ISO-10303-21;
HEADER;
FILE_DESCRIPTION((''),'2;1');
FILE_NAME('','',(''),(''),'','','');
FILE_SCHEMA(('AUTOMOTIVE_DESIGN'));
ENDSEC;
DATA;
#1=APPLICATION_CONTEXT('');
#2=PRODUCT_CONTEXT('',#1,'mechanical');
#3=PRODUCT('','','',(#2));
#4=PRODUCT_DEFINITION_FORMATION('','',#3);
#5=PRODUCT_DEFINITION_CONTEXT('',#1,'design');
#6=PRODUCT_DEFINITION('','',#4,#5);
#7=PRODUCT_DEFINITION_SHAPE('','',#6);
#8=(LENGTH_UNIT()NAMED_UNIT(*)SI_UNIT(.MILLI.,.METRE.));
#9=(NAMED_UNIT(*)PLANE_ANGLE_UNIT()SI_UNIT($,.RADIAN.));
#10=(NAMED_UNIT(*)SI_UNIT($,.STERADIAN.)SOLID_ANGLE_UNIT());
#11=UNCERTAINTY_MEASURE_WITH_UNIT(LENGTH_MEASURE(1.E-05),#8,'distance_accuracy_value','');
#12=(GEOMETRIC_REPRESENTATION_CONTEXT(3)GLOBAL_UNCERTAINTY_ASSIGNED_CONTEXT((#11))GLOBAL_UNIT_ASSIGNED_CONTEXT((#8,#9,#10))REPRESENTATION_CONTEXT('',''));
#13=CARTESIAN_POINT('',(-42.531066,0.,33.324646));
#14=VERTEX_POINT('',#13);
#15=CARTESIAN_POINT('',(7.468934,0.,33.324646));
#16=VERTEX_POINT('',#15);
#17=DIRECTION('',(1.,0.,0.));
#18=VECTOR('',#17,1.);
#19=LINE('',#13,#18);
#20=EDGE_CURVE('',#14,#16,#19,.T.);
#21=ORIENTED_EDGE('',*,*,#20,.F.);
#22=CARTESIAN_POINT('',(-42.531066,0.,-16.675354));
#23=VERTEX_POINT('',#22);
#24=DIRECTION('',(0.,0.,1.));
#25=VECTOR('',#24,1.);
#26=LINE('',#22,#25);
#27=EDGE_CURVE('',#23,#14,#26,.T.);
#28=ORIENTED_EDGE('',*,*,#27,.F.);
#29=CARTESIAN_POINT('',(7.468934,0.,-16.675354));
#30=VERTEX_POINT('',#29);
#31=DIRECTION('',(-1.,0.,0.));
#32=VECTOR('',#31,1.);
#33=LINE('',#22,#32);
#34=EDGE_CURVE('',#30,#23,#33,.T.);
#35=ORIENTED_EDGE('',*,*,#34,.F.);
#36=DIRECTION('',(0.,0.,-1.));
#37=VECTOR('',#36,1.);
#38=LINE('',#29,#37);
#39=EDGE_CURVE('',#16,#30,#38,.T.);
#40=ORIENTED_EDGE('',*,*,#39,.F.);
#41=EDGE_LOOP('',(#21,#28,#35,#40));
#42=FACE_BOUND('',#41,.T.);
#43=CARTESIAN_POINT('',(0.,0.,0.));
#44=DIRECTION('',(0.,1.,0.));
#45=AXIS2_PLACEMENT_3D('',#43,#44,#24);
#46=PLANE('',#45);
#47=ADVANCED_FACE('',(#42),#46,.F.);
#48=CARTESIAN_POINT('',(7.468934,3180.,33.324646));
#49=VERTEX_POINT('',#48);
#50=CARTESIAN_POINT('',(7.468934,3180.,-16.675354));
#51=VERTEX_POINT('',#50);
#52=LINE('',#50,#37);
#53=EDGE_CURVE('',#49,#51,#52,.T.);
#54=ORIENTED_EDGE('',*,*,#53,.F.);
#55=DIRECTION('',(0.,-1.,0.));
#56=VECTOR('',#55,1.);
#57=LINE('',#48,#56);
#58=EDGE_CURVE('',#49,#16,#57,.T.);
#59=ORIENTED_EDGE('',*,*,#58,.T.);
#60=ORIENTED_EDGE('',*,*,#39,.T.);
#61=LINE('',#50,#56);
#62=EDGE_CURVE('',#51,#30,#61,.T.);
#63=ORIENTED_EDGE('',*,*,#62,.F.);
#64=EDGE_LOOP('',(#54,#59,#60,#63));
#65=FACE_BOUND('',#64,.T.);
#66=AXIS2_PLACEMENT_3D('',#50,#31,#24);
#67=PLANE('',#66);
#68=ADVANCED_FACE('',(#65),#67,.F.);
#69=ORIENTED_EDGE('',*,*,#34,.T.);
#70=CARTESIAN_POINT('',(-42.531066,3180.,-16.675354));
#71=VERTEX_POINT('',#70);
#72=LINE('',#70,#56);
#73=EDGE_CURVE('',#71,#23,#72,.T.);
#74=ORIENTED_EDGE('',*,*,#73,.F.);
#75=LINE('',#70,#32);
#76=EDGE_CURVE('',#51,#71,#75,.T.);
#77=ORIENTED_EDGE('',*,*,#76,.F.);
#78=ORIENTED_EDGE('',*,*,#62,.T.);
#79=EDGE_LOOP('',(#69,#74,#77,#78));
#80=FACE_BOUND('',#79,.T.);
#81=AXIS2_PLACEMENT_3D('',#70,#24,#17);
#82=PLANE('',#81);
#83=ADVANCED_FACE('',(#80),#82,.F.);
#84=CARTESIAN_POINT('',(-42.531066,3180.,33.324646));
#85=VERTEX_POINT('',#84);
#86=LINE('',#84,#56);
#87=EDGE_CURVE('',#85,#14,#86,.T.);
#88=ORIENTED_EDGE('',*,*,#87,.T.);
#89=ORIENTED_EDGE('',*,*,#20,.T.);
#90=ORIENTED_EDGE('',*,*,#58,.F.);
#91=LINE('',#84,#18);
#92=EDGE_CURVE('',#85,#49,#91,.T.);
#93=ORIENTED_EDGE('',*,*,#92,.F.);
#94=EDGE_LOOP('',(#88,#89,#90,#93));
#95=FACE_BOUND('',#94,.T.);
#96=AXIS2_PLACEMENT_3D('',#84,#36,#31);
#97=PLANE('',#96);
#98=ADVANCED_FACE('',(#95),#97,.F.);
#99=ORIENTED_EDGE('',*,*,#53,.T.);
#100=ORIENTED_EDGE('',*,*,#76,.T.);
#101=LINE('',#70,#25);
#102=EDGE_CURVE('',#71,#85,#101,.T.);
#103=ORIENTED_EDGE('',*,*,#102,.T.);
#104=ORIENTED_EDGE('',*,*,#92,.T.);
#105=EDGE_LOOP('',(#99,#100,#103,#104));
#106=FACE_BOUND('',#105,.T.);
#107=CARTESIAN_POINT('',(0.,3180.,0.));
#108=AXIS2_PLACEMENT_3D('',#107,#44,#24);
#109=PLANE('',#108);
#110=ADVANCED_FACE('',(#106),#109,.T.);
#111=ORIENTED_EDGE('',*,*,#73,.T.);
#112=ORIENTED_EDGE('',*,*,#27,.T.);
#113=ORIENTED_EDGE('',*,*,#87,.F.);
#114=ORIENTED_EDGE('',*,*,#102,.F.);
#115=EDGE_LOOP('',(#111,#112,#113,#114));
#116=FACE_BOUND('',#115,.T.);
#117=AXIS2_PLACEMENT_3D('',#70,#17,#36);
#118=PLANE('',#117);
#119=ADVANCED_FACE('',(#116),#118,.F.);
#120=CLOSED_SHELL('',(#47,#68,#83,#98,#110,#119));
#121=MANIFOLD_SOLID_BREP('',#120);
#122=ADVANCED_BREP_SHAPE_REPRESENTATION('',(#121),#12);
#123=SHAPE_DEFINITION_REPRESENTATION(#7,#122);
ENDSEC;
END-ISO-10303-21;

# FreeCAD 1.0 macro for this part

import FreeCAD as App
import Part
import Sketcher
from FreeCAD import Vector


def add_polygon(sketch, points):
    """Adds a closed chain of lines whose ends are joined by coincident constraints."""
    first, n = sketch.GeometryCount, len(points)
    for a, b in zip(points, points[1:] + points[:1]):
        sketch.addGeometry(Part.LineSegment(App.Vector(*a, 0), App.Vector(*b, 0)), False)
    for i in range(n):
        sketch.addConstraint(Sketcher.Constraint("Coincident", first + i, 2, first + (i + 1) % n, 1))

doc = App.newDocument("Part")
params = doc.addObject("Spreadsheet::Sheet", "Params")
for row, (alias, value) in enumerate([
    ("sketch1_width", "50 mm"),
    ("pad1_length", "3180 mm"),
], start=1):
    params.set(f"A{row}", alias)
    params.set(f"B{row}", "=" + value)
    params.setAlias(f"B{row}", alias)

body = doc.addObject("PartDesign::Body", "Body")

# Sketch on XZ plane
sketch1 = doc.addObject("Sketcher::SketchObject", "Sketch")
body.addObject(sketch1)
sketch1.AttachmentSupport = (doc.XZ_Plane, [""])
sketch1.MapMode = "FlatFace"
add_polygon(sketch1, [(-43, -17), (-43, 33), (7, 33), (7, -17)])  # lines 0-3
sketch1.addConstraint(Sketcher.Constraint("Vertical", 0))
sketch1.addConstraint(Sketcher.Constraint("Horizontal", 1))
sketch1.addConstraint(Sketcher.Constraint("Vertical", 2))
sketch1.addConstraint(Sketcher.Constraint("Horizontal", 3))
sketch1.addConstraint(Sketcher.Constraint("Equal", 3, 0))
sketch1.addConstraint(Sketcher.Constraint("DistanceX", 1, 1, 1, 2, 50.0))
sketch1.addConstraint(Sketcher.Constraint("DistanceX", 0, 2, -1, 1, 42.531066))
sketch1.addConstraint(Sketcher.Constraint("DistanceY", -1, 1, 0, 2, 33.324646))
sketch1.setExpression("Constraints[9]", "Params.sketch1_width")
pad1 = doc.addObject("PartDesign::Pad", "Pad")
body.addObject(pad1)
pad1.Profile = sketch1
pad1.setExpression("Length", "Params.pad1_length")
pad1.Reversed = True

doc.recompute()
